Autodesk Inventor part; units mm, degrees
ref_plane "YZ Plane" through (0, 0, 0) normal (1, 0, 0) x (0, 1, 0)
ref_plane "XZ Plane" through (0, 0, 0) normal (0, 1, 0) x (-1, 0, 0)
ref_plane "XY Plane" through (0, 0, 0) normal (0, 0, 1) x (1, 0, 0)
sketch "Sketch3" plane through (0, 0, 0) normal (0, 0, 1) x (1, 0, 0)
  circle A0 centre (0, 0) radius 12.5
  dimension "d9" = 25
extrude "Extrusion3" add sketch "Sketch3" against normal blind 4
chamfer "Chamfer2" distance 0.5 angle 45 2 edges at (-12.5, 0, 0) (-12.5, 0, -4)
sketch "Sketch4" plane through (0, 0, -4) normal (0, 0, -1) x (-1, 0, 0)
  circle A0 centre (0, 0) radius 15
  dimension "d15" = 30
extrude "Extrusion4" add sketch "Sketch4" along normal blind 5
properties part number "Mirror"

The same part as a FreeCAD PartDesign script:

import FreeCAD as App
import Part
import Sketcher
from FreeCAD import Vector


def edges_at(feature, points):
    """Names of the edges that pass closest to the given points."""
    edges = feature.Shape.Edges
    near = lambda p: min(range(len(edges)), key=lambda i: edges[i].distToShape(Part.Vertex(*p))[0])
    return sorted({f"Edge{near(p) + 1}" for p in points})

doc = App.newDocument("Part")
body = doc.addObject("PartDesign::Body", "Body")

# Sketch on XY plane
sketch1 = body.newObject("Sketcher::SketchObject", "Sketch")
sketch1.AttachmentSupport = (doc.getObject("XY_Plane"), [""])
sketch1.MapMode = "FlatFace"
sketch1.addGeometry(Part.Circle(Vector(0, 0, 0), Vector(0, 0, 1), 12), False)
sketch1.addConstraint([
    Sketcher.Constraint("Coincident", 0, 3, -1, 1),
    Sketcher.Constraint("Diameter", 0, 25.0),
])
pad1 = body.newObject("PartDesign::Pad", "Pad")
pad1.Profile = sketch1
pad1.Length = 4
pad1.Reversed = True
doc.recompute()

chamfer = body.newObject("PartDesign::Chamfer", "Chamfer")
chamfer.Base = (pad1, edges_at(pad1, [(-12.5, 0, 0), (-12.5, 0, -4)]))
chamfer.Size = 0.5

# Sketch on XY plane
sketch2 = body.newObject("Sketcher::SketchObject", "Sketch001")
sketch2.AttachmentSupport = (doc.getObject("XY_Plane"), [""])
sketch2.MapMode = "FlatFace"
sketch2.AttachmentOffset = App.Placement(Vector(0, 0, -4), App.Rotation())
sketch2.addGeometry(Part.Circle(Vector(0, 0, 0), Vector(0, 0, 1), 15), False)
sketch2.addConstraint([
    Sketcher.Constraint("Coincident", 0, 3, -1, 1),
    Sketcher.Constraint("Diameter", 0, 30.0),
])
pad2 = body.newObject("PartDesign::Pad", "Pad001")
pad2.Profile = sketch2
pad2.Length = 5
pad2.Reversed = True

doc.recompute()
